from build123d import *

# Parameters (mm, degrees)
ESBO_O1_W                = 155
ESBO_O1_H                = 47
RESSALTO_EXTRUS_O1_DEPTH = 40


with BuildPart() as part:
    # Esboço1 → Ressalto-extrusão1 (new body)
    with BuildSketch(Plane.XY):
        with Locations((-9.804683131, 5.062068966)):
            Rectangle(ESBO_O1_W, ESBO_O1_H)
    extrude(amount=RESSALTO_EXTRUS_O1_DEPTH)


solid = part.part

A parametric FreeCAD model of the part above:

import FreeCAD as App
import Part
import Sketcher
from FreeCAD import Vector
Q = App.Units.Quantity


def add_polygon(sketch, points):
    """Adds a closed chain of lines whose ends are joined by coincident constraints."""
    first, n = sketch.GeometryCount, len(points)
    for a, b in zip(points, points[1:] + points[:1]):
        sketch.addGeometry(Part.LineSegment(App.Vector(*a, 0), App.Vector(*b, 0)), False)
    for i in range(n):
        sketch.addConstraint(Sketcher.Constraint("Coincident", first + i, 2, first + (i + 1) % n, 1))

doc = App.newDocument("Part")
body = doc.addObject("PartDesign::Body", "Body")

# Sketch on XY plane
sketch1 = body.newObject("Sketcher::SketchObject", "Sketch")
sketch1.AttachmentSupport = (doc.getObject("XY_Plane"), [""])
sketch1.MapMode = "FlatFace"
add_polygon(sketch1, [(-87.304683, 28.562069), (-87.304683, -18.437931), (67.695317, -18.437931), (67.695317, 28.562069)])  # lines 0-3
sketch1.addConstraint([
    Sketcher.Constraint("Vertical", 0),
    Sketcher.Constraint("Horizontal", 1),
    Sketcher.Constraint("Vertical", 2),
    Sketcher.Constraint("Horizontal", 3),
    Sketcher.Constraint("DistanceX", 1, 1, 1, 2, Q("155 mm")),
    Sketcher.Constraint("DistanceY", 0, 2, 0, 1, Q("47 mm")),
    Sketcher.Constraint("DistanceY", 0, 2, -1, 1, Q("18.437931 mm")),
    Sketcher.Constraint("DistanceX", 0, 2, -1, 1, Q("87.304683 mm")),
])
pad1 = body.newObject("PartDesign::Pad", "Pad")
pad1.Profile = sketch1
pad1.Length = 40

doc.recompute()
